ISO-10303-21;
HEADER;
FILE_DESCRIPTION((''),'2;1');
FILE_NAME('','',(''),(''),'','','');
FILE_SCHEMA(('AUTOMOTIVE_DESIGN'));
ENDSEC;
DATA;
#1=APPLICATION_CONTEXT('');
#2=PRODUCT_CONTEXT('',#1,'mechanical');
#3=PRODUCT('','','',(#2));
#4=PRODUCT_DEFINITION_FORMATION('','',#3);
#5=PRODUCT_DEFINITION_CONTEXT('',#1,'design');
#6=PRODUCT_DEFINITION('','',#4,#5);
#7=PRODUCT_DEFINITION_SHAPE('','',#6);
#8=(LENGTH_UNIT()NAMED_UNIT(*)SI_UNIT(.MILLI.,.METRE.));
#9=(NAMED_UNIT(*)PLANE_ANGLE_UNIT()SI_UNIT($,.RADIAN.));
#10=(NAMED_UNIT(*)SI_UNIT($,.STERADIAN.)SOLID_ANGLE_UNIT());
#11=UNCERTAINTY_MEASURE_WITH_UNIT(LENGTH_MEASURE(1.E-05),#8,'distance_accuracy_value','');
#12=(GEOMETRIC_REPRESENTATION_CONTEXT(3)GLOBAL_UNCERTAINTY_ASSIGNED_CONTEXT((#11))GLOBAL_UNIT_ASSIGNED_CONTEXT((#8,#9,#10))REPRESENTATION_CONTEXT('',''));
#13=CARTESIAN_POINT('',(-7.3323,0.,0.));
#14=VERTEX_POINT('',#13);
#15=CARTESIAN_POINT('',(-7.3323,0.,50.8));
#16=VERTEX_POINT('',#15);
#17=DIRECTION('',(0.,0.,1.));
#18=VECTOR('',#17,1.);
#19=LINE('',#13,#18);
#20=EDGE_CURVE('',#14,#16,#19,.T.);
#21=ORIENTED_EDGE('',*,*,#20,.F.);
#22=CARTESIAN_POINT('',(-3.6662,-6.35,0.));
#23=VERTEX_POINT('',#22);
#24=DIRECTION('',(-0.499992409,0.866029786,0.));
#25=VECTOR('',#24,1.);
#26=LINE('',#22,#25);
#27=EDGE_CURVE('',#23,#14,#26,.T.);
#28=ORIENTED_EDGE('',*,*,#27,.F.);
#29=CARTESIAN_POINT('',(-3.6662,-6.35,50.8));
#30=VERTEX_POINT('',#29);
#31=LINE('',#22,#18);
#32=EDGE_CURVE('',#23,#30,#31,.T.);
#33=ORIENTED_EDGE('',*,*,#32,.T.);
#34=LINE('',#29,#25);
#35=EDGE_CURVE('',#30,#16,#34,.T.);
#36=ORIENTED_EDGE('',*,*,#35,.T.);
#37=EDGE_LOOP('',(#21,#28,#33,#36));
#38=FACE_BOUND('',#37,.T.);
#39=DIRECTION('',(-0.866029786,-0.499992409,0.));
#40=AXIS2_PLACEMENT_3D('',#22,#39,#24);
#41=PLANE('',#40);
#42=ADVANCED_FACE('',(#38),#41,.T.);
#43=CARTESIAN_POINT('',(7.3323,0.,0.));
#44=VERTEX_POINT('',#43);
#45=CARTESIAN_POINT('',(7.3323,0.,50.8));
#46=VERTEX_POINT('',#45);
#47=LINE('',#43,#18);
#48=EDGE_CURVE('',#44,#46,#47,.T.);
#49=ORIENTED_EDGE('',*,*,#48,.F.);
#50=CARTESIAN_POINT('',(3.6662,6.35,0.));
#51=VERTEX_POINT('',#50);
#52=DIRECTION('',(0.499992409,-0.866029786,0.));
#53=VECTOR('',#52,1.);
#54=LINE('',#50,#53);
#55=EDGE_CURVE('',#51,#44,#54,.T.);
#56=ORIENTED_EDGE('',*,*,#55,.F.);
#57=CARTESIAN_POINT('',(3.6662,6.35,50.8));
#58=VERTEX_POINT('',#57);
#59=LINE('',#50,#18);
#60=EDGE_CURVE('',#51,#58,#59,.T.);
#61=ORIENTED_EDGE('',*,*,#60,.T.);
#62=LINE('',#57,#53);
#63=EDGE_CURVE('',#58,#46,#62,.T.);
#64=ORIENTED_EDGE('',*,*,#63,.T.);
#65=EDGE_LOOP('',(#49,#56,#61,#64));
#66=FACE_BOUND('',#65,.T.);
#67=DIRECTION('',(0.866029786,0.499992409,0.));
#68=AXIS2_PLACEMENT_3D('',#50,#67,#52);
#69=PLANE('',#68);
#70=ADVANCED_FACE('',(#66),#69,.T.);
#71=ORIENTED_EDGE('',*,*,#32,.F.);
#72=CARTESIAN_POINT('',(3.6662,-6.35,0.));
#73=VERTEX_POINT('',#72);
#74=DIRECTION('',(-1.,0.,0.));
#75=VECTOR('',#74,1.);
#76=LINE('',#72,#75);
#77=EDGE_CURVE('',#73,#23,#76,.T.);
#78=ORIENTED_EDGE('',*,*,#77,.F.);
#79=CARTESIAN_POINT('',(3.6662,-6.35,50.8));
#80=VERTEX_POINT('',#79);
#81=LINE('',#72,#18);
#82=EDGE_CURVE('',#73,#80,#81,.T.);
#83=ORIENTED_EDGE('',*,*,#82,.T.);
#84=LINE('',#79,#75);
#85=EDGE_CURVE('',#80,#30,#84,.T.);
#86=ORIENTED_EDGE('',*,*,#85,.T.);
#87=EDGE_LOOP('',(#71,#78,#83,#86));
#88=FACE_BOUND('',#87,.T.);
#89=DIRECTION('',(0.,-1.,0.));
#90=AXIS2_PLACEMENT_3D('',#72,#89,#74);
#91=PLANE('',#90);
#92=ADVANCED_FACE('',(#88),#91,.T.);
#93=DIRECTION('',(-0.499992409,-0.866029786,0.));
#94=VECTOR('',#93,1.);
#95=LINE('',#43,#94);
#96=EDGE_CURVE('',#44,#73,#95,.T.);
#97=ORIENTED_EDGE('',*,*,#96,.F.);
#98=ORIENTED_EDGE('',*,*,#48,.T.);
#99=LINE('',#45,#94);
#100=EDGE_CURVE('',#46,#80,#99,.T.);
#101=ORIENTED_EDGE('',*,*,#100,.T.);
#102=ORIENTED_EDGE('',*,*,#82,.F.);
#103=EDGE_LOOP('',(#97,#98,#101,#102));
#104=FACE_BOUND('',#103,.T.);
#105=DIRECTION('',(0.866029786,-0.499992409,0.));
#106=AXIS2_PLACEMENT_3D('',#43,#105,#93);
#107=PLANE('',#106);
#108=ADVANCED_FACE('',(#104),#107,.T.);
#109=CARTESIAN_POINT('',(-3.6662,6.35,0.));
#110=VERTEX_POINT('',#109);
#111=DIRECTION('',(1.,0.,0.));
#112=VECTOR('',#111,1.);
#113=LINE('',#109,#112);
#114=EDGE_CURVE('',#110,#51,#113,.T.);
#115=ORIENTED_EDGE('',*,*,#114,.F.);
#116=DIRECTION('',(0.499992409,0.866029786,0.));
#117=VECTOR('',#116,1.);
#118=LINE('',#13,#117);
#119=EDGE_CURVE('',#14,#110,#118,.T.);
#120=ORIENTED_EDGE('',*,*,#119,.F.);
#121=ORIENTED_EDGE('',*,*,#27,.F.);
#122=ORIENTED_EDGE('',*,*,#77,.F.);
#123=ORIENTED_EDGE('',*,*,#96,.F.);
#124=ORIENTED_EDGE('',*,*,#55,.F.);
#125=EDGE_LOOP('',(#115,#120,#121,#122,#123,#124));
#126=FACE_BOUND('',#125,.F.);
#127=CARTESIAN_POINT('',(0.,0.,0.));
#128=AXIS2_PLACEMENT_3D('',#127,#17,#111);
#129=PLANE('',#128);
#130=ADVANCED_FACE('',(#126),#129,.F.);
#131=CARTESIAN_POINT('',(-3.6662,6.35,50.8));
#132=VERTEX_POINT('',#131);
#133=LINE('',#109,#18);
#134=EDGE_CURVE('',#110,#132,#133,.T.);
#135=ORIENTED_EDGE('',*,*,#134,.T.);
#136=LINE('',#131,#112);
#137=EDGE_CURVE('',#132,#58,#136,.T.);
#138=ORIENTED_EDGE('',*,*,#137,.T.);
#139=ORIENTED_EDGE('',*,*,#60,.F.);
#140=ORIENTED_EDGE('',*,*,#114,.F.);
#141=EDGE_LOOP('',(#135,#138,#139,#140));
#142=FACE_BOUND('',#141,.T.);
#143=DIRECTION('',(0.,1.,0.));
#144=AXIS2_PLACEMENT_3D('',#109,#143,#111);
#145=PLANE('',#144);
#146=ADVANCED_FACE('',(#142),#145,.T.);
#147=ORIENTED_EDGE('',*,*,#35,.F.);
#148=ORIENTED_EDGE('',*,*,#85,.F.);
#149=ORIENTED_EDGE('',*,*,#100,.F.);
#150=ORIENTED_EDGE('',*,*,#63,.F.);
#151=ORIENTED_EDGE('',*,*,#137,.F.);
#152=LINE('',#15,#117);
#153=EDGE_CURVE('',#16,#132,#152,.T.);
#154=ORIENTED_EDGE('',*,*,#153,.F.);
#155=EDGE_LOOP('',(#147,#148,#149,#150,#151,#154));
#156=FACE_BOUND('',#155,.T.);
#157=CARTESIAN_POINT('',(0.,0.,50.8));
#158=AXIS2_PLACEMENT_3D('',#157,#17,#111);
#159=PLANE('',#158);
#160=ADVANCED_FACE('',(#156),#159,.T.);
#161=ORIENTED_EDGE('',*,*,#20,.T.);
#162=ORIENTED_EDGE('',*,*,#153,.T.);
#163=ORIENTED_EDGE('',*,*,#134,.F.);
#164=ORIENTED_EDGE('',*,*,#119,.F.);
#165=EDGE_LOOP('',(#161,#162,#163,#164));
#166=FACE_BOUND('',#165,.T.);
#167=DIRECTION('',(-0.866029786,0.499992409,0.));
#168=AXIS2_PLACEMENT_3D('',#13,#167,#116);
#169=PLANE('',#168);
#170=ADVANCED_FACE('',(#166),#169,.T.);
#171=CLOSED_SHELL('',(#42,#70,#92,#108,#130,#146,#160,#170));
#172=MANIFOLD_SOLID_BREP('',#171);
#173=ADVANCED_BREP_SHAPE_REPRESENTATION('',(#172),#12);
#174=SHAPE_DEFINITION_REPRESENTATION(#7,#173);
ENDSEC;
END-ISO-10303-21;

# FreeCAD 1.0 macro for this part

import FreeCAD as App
import Part
import Sketcher
Q = App.Units.Quantity

doc = App.newDocument("Part")
body = doc.addObject("PartDesign::Body", "Body")

# Sketch on XY plane
sketch1 = body.newObject("Sketcher::SketchObject", "Sketch")
sketch1.AttachmentSupport = (doc.getObject("XY_Plane"), [""])
sketch1.MapMode = "FlatFace"
sketch1.addGeometry(Part.LineSegment(App.Vector(7.3323, 0, 0), App.Vector(3.6662, 6.35, 0)), False)
sketch1.addGeometry(Part.LineSegment(App.Vector(3.6662, 6.35, 0), App.Vector(-3.6662, 6.35, 0)), False)
sketch1.addGeometry(Part.LineSegment(App.Vector(-3.6662, 6.35, 0), App.Vector(-7.3323, 0, 0)), False)
sketch1.addGeometry(Part.LineSegment(App.Vector(-7.3323, 0, 0), App.Vector(-3.6662, -6.35, 0)), False)
sketch1.addGeometry(Part.LineSegment(App.Vector(-3.6662, -6.35, 0), App.Vector(3.6662, -6.35, 0)), False)
sketch1.addGeometry(Part.LineSegment(App.Vector(3.6662, -6.35, 0), App.Vector(7.3323, 0, 0)), False)
sketch1.addConstraint(Sketcher.Constraint("Coincident", 0, 2, 1, 1))
sketch1.addConstraint(Sketcher.Constraint("Coincident", 1, 2, 2, 1))
sketch1.addConstraint(Sketcher.Constraint("Coincident", 2, 2, 3, 1))
sketch1.addConstraint(Sketcher.Constraint("Coincident", 3, 2, 4, 1))
sketch1.addConstraint(Sketcher.Constraint("Coincident", 4, 2, 5, 1))
sketch1.addConstraint(Sketcher.Constraint("Coincident", 5, 2, 0, 1))
sketch1.addConstraint(Sketcher.Constraint("Horizontal", 1))
sketch1.addConstraint(Sketcher.Constraint("Horizontal", 4))
sketch1.addConstraint(Sketcher.Constraint("Symmetric", 0, 2, 3, 2, -1, 1))
sketch1.addConstraint(Sketcher.Constraint("Symmetric", 2, 2, 5, 2, -1, 1))
sketch1.addConstraint(Sketcher.Constraint("PointOnObject", 2, 2, -1))
sketch1.addConstraint(Sketcher.Constraint("Parallel", 2, 5))
sketch1.addConstraint(Sketcher.Constraint("Vertical", 1, 2, 3, 2))
sketch1.addConstraint(Sketcher.Constraint("DistanceY", 3, 2, 1, 2, Q("0.5 in")))
sketch1.addConstraint(Sketcher.Constraint("Angle", 0, Q("119.9995 deg")))
sketch1.addConstraint(Sketcher.Constraint("DistanceX", 2, 2, 0, 2, Q("0.433 in")))
pad1 = body.newObject("PartDesign::Pad", "Pad")
pad1.Profile = sketch1
pad1.Length = Q("2 in")

doc.recompute()
